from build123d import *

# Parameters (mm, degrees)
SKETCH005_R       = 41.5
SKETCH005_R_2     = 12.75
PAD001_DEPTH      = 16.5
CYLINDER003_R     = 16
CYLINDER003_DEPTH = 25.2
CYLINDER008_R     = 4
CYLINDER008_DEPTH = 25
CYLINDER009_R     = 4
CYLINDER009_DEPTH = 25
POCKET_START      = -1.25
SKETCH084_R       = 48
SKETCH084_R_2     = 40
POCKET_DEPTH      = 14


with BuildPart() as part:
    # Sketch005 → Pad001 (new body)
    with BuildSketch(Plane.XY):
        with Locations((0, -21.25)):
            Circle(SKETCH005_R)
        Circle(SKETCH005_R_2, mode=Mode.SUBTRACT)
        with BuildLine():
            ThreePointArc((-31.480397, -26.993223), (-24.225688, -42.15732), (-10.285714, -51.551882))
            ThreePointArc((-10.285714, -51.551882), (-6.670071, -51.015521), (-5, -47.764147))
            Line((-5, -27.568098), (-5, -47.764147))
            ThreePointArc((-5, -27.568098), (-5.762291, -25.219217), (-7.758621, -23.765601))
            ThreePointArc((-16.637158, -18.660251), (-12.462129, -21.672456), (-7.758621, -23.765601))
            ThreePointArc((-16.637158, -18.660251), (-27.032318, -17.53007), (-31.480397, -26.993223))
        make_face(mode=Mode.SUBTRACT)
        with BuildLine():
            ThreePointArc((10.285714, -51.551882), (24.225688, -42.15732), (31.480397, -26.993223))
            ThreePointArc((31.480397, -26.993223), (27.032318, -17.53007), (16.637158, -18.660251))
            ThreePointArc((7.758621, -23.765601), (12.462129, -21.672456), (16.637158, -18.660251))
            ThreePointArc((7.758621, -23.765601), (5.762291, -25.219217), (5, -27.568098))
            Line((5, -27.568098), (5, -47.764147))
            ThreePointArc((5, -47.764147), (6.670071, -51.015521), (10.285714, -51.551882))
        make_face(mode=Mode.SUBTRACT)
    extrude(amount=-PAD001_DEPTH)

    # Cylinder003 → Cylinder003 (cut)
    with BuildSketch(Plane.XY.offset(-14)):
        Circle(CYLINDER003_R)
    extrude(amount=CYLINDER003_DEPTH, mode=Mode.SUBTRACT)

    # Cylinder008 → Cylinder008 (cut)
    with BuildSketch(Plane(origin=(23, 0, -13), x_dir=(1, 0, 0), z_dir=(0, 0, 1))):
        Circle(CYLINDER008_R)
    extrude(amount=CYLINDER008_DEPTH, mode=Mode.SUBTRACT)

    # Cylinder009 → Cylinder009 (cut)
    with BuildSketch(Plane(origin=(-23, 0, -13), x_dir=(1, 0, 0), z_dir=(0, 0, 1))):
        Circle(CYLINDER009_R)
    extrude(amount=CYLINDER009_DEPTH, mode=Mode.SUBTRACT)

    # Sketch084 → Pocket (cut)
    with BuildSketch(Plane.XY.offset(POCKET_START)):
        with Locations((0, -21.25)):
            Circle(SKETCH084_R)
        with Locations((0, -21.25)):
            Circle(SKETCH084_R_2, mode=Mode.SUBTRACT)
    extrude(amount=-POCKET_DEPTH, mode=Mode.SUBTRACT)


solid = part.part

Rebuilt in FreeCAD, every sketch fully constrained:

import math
import FreeCAD as App
import Part
import Sketcher
Q = App.Units.Quantity

doc = App.newDocument("Part")
body = doc.addObject("PartDesign::Body", "Body")

# Sketch on XY plane
sketch1 = body.newObject("Sketcher::SketchObject", "Sketch")
sketch1.AttachmentSupport = (doc.getObject("XY_Plane"), [""])
sketch1.MapMode = "FlatFace"
sketch1.addGeometry(Part.Circle(App.Vector(0, -21.25, 0), App.Vector(0, 0, 1), 41.5), False)
sketch1.addGeometry(Part.ArcOfCircle(Part.Circle(App.Vector(-0.000001, -21.25, 0), App.Vector(0, 0, 1), 31.999999), math.radians(-169.660776), math.radians(-108.749339)), False)
sketch1.addGeometry(Part.ArcOfCircle(Part.Circle(App.Vector(-22.626535, -25.377941, 0), App.Vector(0, 0, 1), 9), math.radians(48.280351), math.radians(190.339226)), False)
sketch1.addGeometry(Part.ArcOfCircle(Part.Circle(App.Vector(-0.000008, -0.000013, 0), App.Vector(0, 0, 1), 24.999985), math.radians(-131.719652), math.radians(-108.080006)), False)
sketch1.addGeometry(Part.ArcOfCircle(Part.Circle(App.Vector(-9.000001, -27.568098, 0), App.Vector(0, 0, 1), 4.000001), math.radians(0), math.radians(71.919983)), False)
sketch1.addGeometry(Part.LineSegment(App.Vector(-5, -27.568098, 0), App.Vector(-5, -47.764147, 0)), False)
sketch1.addGeometry(Part.ArcOfCircle(Part.Circle(App.Vector(-8.999999, -47.764148, 0), App.Vector(0, 0, 1), 3.999999), math.radians(-108.749353), math.radians(0.00001)), False)
sketch1.addGeometry(Part.ArcOfCircle(Part.Circle(App.Vector(0.000001, -21.25, 0), App.Vector(0, 0, 1), 31.999999), math.radians(-71.250661), math.radians(-10.339224)), False)
sketch1.addGeometry(Part.ArcOfCircle(Part.Circle(App.Vector(8.999999, -47.764148, 0), App.Vector(0, 0, 1), 3.999999), math.radians(179.99999), math.radians(288.749353)), False)
sketch1.addGeometry(Part.LineSegment(App.Vector(5, -47.764147, 0), App.Vector(5, -27.568098, 0)), False)
sketch1.addGeometry(Part.ArcOfCircle(Part.Circle(App.Vector(9.000001, -27.568098, 0), App.Vector(0, 0, 1), 4.000001), math.radians(108.080017), math.radians(180)), False)
sketch1.addGeometry(Part.ArcOfCircle(Part.Circle(App.Vector(0.000008, -0.000013, 0), App.Vector(0, 0, 1), 24.999985), math.radians(-71.919994), math.radians(-48.280348)), False)
sketch1.addGeometry(Part.ArcOfCircle(Part.Circle(App.Vector(22.626535, -25.377941, 0), App.Vector(0, 0, 1), 9), math.radians(-10.339226), math.radians(131.719649)), False)
sketch1.addGeometry(Part.Circle(App.Vector(0, 0, 0), App.Vector(0, 0, 1), 12.75), False)
sketch1.addConstraint(Sketcher.Constraint("Coincident", 1, 1, 2, 2))
sketch1.addConstraint(Sketcher.Constraint("Coincident", 2, 1, 3, 1))
sketch1.addConstraint(Sketcher.Constraint("Coincident", 3, 2, 4, 2))
sketch1.addConstraint(Sketcher.Constraint("Coincident", 4, 1, 5, 1))
sketch1.addConstraint(Sketcher.Constraint("Coincident", 5, 2, 6, 2))
sketch1.addConstraint(Sketcher.Constraint("Coincident", 6, 1, 1, 2))
sketch1.addConstraint(Sketcher.Constraint("Coincident", 7, 1, 8, 2))
sketch1.addConstraint(Sketcher.Constraint("Coincident", 8, 1, 9, 1))
sketch1.addConstraint(Sketcher.Constraint("Coincident", 9, 2, 10, 2))
sketch1.addConstraint(Sketcher.Constraint("Coincident", 10, 1, 11, 1))
sketch1.addConstraint(Sketcher.Constraint("Coincident", 11, 2, 12, 2))
sketch1.addConstraint(Sketcher.Constraint("Coincident", 12, 1, 7, 2))
sketch1.addConstraint(Sketcher.Constraint("Vertical", 5))
sketch1.addConstraint(Sketcher.Constraint("Vertical", 9))
sketch1.addConstraint(Sketcher.Constraint("Coincident", 13, 3, -1, 1))
sketch1.addConstraint(Sketcher.Constraint("Coincident", 1, 3, 0, 3))
sketch1.addConstraint(Sketcher.Constraint("Coincident", 7, 3, 0, 3))
sketch1.addConstraint(Sketcher.Constraint("PointOnObject", 0, 3, -2))
sketch1.addConstraint(Sketcher.Constraint("Diameter", 0, Q("83 mm")))
sketch1.addConstraint(Sketcher.Constraint("Radius", 1, Q("31.999999 mm")))
sketch1.addConstraint(Sketcher.Constraint("Radius", 2, Q("9 mm")))
sketch1.addConstraint(Sketcher.Constraint("Radius", 4, Q("4.000001 mm")))
sketch1.addConstraint(Sketcher.Constraint("Radius", 6, Q("3.999999 mm")))
sketch1.addConstraint(Sketcher.Constraint("Radius", 7, Q("31.999999 mm")))
sketch1.addConstraint(Sketcher.Constraint("Radius", 8, Q("3.999999 mm")))
sketch1.addConstraint(Sketcher.Constraint("Radius", 10, Q("4.000001 mm")))
sketch1.addConstraint(Sketcher.Constraint("Radius", 12, Q("9 mm")))
sketch1.addConstraint(Sketcher.Constraint("Diameter", 13, Q("25.5 mm")))
sketch1.addConstraint(Sketcher.Constraint("DistanceX", 4, 3, -1, 1, Q("9.000001 mm")))
sketch1.addConstraint(Sketcher.Constraint("DistanceX", -1, 1, 8, 3, Q("8.999999 mm")))
sketch1.addConstraint(Sketcher.Constraint("DistanceY", 0, 3, -1, 1, Q("21.25 mm")))
sketch1.addConstraint(Sketcher.Constraint("Radius", 3, Q("24.999985 mm")))
sketch1.addConstraint(Sketcher.Constraint("Radius", 11, Q("24.999985 mm")))
sketch1.addConstraint(Sketcher.Constraint("DistanceY", 5, 2, 5, 1, Q("20.196049 mm")))
sketch1.addConstraint(Sketcher.Constraint("DistanceY", 9, 1, 9, 2, Q("20.196049 mm")))
sketch1.addConstraint(Sketcher.Constraint("DistanceY", 3, 2, -1, 1, Q("23.765601 mm")))
sketch1.addConstraint(Sketcher.Constraint("DistanceY", 10, 1, -1, 1, Q("23.765601 mm")))
sketch1.addConstraint(Sketcher.Constraint("DistanceY", 4, 3, 1, 3, Q("6.318098 mm")))
sketch1.addConstraint(Sketcher.Constraint("DistanceY", 10, 3, 7, 3, Q("6.318098 mm")))
sketch1.addConstraint(Sketcher.Constraint("DistanceY", 4, 1, 1, 3, Q("6.318098 mm")))
sketch1.addConstraint(Sketcher.Constraint("DistanceY", 9, 2, 7, 3, Q("6.318098 mm")))
sketch1.addConstraint(Sketcher.Constraint("DistanceY", 2, 3, -1, 1, Q("25.377941 mm")))
sketch1.addConstraint(Sketcher.Constraint("DistanceY", 12, 3, -1, 1, Q("25.377941 mm")))
sketch1.addConstraint(Sketcher.Constraint("DistanceY", 2, 1, -1, 1, Q("18.660251 mm")))
sketch1.addConstraint(Sketcher.Constraint("DistanceY", 6, 1, -1, 1, Q("51.551882 mm")))
sketch1.addConstraint(Sketcher.Constraint("DistanceY", 11, 2, -1, 1, Q("18.660251 mm")))
sketch1.addConstraint(Sketcher.Constraint("DistanceX", 1, 1, 2, 3, Q("8.853862 mm")))
sketch1.addConstraint(Sketcher.Constraint("DistanceX", 6, 1, 7, 1, Q("20.571428 mm")))
sketch1.addConstraint(Sketcher.Constraint("DistanceX", 12, 3, 12, 1, Q("8.853862 mm")))
pad1 = body.newObject("PartDesign::Pad", "Pad")
pad1.Profile = sketch1
pad1.Length = 16.5
pad1.Reversed = True

# Sketch on XY plane
sketch2 = body.newObject("Sketcher::SketchObject", "Sketch001")
sketch2.AttachmentSupport = (doc.getObject("XY_Plane"), [""])
sketch2.MapMode = "FlatFace"
sketch2.AttachmentOffset = App.Placement(App.Vector(0, 0, -14), App.Rotation())
sketch2.addGeometry(Part.Circle(App.Vector(0, 0, 0), App.Vector(0, 0, 1), 16), False)
sketch2.addConstraint(Sketcher.Constraint("Coincident", 0, 3, -1, 1))
sketch2.addConstraint(Sketcher.Constraint("Diameter", 0, Q("32 mm")))
pocket1 = body.newObject("PartDesign::Pocket", "Pocket")
pocket1.Profile = sketch2
pocket1.Length = 25.2
pocket1.Reversed = True

# Sketch on XY plane
sketch3 = body.newObject("Sketcher::SketchObject", "Sketch002")
sketch3.AttachmentSupport = (doc.getObject("XY_Plane"), [""])
sketch3.MapMode = "FlatFace"
sketch3.AttachmentOffset = App.Placement(App.Vector(0, 0, -13), App.Rotation())
sketch3.addGeometry(Part.Circle(App.Vector(23, 0, 0), App.Vector(0, 0, 1), 4), False)
sketch3.addConstraint(Sketcher.Constraint("PointOnObject", 0, 3, -1))
sketch3.addConstraint(Sketcher.Constraint("Diameter", 0, Q("8 mm")))
sketch3.addConstraint(Sketcher.Constraint("DistanceX", -1, 1, 0, 3, Q("23 mm")))
pocket2 = body.newObject("PartDesign::Pocket", "Pocket001")
pocket2.Profile = sketch3
pocket2.Length = 25
pocket2.Reversed = True

# Sketch on XY plane
sketch4 = body.newObject("Sketcher::SketchObject", "Sketch003")
sketch4.AttachmentSupport = (doc.getObject("XY_Plane"), [""])
sketch4.MapMode = "FlatFace"
sketch4.AttachmentOffset = App.Placement(App.Vector(0, 0, -13), App.Rotation())
sketch4.addGeometry(Part.Circle(App.Vector(-23, 0, 0), App.Vector(0, 0, 1), 4), False)
sketch4.addConstraint(Sketcher.Constraint("PointOnObject", 0, 3, -1))
sketch4.addConstraint(Sketcher.Constraint("Diameter", 0, Q("8 mm")))
sketch4.addConstraint(Sketcher.Constraint("DistanceX", 0, 3, -1, 1, Q("23 mm")))
pocket3 = body.newObject("PartDesign::Pocket", "Pocket002")
pocket3.Profile = sketch4
pocket3.Length = 25
pocket3.Reversed = True

# Sketch on XY plane
sketch5 = body.newObject("Sketcher::SketchObject", "Sketch004")
sketch5.AttachmentSupport = (doc.getObject("XY_Plane"), [""])
sketch5.MapMode = "FlatFace"
sketch5.AttachmentOffset = App.Placement(App.Vector(0, 0, -1.25), App.Rotation())
sketch5.addGeometry(Part.Circle(App.Vector(0, -21, 0), App.Vector(0, 0, 1), 48), False)
sketch5.addGeometry(Part.Circle(App.Vector(0, -21, 0), App.Vector(0, 0, 1), 40), False)
sketch5.addConstraint(Sketcher.Constraint("Coincident", 1, 3, 0, 3))
sketch5.addConstraint(Sketcher.Constraint("PointOnObject", 0, 3, -2))
sketch5.addConstraint(Sketcher.Constraint("Diameter", 0, Q("96 mm")))
sketch5.addConstraint(Sketcher.Constraint("Diameter", 1, Q("80 mm")))
sketch5.addConstraint(Sketcher.Constraint("DistanceY", 0, 3, -1, 1, Q("21.25 mm")))
pocket4 = body.newObject("PartDesign::Pocket", "Pocket003")
pocket4.Profile = sketch5
pocket4.Length = 14

doc.recompute()
